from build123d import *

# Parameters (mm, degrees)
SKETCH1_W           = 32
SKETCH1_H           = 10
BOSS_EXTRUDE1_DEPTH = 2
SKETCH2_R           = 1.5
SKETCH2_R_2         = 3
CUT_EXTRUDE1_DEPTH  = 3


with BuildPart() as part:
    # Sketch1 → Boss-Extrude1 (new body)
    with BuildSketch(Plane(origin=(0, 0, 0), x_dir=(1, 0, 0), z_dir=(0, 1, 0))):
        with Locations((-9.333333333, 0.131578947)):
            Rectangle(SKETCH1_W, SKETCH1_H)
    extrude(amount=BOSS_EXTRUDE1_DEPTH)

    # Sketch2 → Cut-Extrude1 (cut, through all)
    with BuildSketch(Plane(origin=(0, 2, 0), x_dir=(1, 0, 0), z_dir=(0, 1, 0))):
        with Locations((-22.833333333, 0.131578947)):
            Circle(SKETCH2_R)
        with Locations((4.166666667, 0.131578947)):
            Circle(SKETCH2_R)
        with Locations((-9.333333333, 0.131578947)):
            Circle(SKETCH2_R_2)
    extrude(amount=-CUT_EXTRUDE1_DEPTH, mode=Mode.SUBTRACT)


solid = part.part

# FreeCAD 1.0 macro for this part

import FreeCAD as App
import Part
import Sketcher
Q = App.Units.Quantity

doc = App.newDocument("Part")
body = doc.addObject("PartDesign::Body", "Body")

# Sketch on XZ plane
sketch1 = body.newObject("Sketcher::SketchObject", "Sketch")
sketch1.AttachmentSupport = (doc.getObject("XZ_Plane"), [""])
sketch1.MapMode = "FlatFace"
sketch1.addGeometry([
    Part.LineSegment(App.Vector(-25.333333, -5.131579, 0), App.Vector(-25.333333, 4.868421, 0)),
    Part.LineSegment(App.Vector(-25.333333, 4.868421, 0), App.Vector(6.666667, 4.868421, 0)),
    Part.LineSegment(App.Vector(6.666667, 4.868421, 0), App.Vector(6.666667, -5.131579, 0)),
    Part.LineSegment(App.Vector(6.666667, -5.131579, 0), App.Vector(-25.333333, -5.131579, 0)),
], False)
sketch1.addConstraint([
    Sketcher.Constraint("Coincident", 0, 2, 1, 1),
    Sketcher.Constraint("Coincident", 1, 2, 2, 1),
    Sketcher.Constraint("Coincident", 2, 2, 3, 1),
    Sketcher.Constraint("Coincident", 3, 2, 0, 1),
    Sketcher.Constraint("Vertical", 0),
    Sketcher.Constraint("Horizontal", 1),
    Sketcher.Constraint("Vertical", 2),
    Sketcher.Constraint("Horizontal", 3),
    Sketcher.Constraint("DistanceX", 1, 1, 1, 2, Q("32 mm")),
    Sketcher.Constraint("DistanceY", 0, 1, 0, 2, Q("10 mm")),
    Sketcher.Constraint("DistanceY", -1, 1, 0, 2, Q("4.868421 mm")),
    Sketcher.Constraint("DistanceX", 0, 2, -1, 1, Q("25.333333 mm")),
])
pad1 = body.newObject("PartDesign::Pad", "Pad")
pad1.Profile = sketch1
pad1.Length = 2
pad1.Reversed = True

# Sketch on XZ plane
sketch2 = body.newObject("Sketcher::SketchObject", "Sketch001")
sketch2.AttachmentSupport = (doc.getObject("XZ_Plane"), [""])
sketch2.MapMode = "FlatFace"
sketch2.AttachmentOffset = App.Placement(App.Vector(0, 0, -2), App.Rotation())
sketch2.addGeometry([
    Part.Circle(App.Vector(-22.833333, -0.131579, 0), App.Vector(0, 0, 1), 1.5),
    Part.Circle(App.Vector(4.166667, -0.131579, 0), App.Vector(0, 0, 1), 1.5),
    Part.Circle(App.Vector(-9.333333, -0.131579, 0), App.Vector(0, 0, 1), 3),
], False)
sketch2.addConstraint([
    Sketcher.Constraint("Equal", 0, 1),
    Sketcher.Constraint("Horizontal", 0, 3, 1, 3),
    Sketcher.Constraint("Horizontal", 1, 3, 2, 3),
    Sketcher.Constraint("Diameter", 0, Q("3 mm")),
    Sketcher.Constraint("Diameter", 2, Q("6 mm")),
    Sketcher.Constraint("DistanceX", 0, 3, 1, 3, Q("27 mm")),
    Sketcher.Constraint("DistanceX", 0, 3, 2, 3, Q("13.5 mm")),
    Sketcher.Constraint("DistanceY", 0, 3, -1, 1, Q("0.131579 mm")),
    Sketcher.Constraint("DistanceX", 0, 3, -1, 1, Q("22.833333 mm")),
])
pocket1 = body.newObject("PartDesign::Pocket", "Pocket")
pocket1.Profile = sketch2
pocket1.Type = "ThroughAll"
pocket1.Reversed = True

doc.recompute()
